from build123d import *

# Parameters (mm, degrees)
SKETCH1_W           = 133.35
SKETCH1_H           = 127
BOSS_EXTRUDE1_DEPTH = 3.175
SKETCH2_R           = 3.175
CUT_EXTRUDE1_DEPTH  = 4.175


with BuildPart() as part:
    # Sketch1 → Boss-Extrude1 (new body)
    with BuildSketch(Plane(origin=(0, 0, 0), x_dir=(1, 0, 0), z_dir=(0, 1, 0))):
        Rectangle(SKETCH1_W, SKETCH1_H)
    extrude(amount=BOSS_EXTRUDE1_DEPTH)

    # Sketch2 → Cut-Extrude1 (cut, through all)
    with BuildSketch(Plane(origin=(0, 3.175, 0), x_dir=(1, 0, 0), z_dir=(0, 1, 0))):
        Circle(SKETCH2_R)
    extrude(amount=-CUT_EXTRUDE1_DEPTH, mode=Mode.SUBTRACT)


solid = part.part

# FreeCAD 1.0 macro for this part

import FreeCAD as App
import Part
import Sketcher
from FreeCAD import Vector
Q = App.Units.Quantity


def add_polygon(sketch, points):
    """Adds a closed chain of lines whose ends are joined by coincident constraints."""
    first, n = sketch.GeometryCount, len(points)
    for a, b in zip(points, points[1:] + points[:1]):
        sketch.addGeometry(Part.LineSegment(App.Vector(*a, 0), App.Vector(*b, 0)), False)
    for i in range(n):
        sketch.addConstraint(Sketcher.Constraint("Coincident", first + i, 2, first + (i + 1) % n, 1))

doc = App.newDocument("Part")
params = doc.addObject("Spreadsheet::Sheet", "Params")
for row, (alias, value) in enumerate([
    ("sketch1_height", "5 in"),
    ("sketch1_width", "5.25 in"),
    ("pad1_length", "0.125 in"),
    ("sketch2_diameter", "0.25 in"),
], start=1):
    params.set(f"A{row}", alias)
    params.set(f"B{row}", "=" + value)
    params.setAlias(f"B{row}", alias)

body = doc.addObject("PartDesign::Body", "Body")

sketch1 = body.newObject("Sketcher::SketchObject", "Sketch")
sketch1.AttachmentSupport = (doc.getObject("XZ_Plane"), [""])
sketch1.MapMode = "FlatFace"
add_polygon(sketch1, [(-66.675, -63.5), (-66.675, 63.5), (66.675, 63.5), (66.675, -63.5)])
sketch1.addConstraint([
    Sketcher.Constraint("Vertical", 0),
    Sketcher.Constraint("Horizontal", 1),
    Sketcher.Constraint("Vertical", 2),
    Sketcher.Constraint("Horizontal", 3),
    Sketcher.Constraint("Symmetric", 0, 2, 2, 2, -1, 1),
    Sketcher.Constraint("DistanceY", 0, 1, 0, 2, Q("5 in")),
    Sketcher.Constraint("DistanceX", 1, 1, 1, 2, Q("5.25 in")),
])
sketch1.setExpression("Constraints[9]", "Params.sketch1_height")
sketch1.setExpression("Constraints[10]", "Params.sketch1_width")
pad1 = body.newObject("PartDesign::Pad", "Pad")
pad1.Profile = sketch1
pad1.setExpression("Length", "Params.pad1_length")
pad1.Reversed = True

sketch2 = body.newObject("Sketcher::SketchObject", "Sketch001")
sketch2.AttachmentSupport = (doc.getObject("XZ_Plane"), [""])
sketch2.MapMode = "FlatFace"
sketch2.AttachmentOffset = App.Placement(Vector(0, 0, -0.125 * 25.4), App.Rotation())
sketch2.addGeometry(Part.Circle(Vector(0, 0, 0), Vector(0, 0, 1), 3.175), False)
sketch2.addConstraint([
    Sketcher.Constraint("Coincident", 0, 3, -1, 1),
    Sketcher.Constraint("Diameter", 0, Q("0.25 in")),
])
sketch2.setExpression("Constraints[1]", "Params.sketch2_diameter")
pocket1 = body.newObject("PartDesign::Pocket", "Pocket")
pocket1.Profile = sketch2
pocket1.Type = "ThroughAll"
pocket1.Reversed = True

doc.recompute()
